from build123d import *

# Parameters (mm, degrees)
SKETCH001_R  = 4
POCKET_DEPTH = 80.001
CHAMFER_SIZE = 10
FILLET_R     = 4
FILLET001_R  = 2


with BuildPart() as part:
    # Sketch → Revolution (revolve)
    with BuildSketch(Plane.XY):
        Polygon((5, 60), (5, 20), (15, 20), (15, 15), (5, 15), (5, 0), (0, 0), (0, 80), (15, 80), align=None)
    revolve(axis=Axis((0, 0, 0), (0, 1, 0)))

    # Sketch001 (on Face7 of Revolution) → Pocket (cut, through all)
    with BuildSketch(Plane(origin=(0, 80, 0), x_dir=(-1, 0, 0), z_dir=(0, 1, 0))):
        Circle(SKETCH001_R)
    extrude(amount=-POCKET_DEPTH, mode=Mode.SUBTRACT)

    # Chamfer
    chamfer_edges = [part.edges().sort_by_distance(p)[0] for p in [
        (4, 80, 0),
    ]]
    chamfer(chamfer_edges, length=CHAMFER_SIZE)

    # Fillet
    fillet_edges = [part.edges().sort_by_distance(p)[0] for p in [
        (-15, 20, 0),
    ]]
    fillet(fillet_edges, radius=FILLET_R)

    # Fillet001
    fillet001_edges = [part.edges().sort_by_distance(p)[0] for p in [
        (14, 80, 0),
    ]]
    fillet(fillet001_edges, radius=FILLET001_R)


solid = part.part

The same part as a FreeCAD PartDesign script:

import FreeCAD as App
import Part
import Sketcher

V = App.Vector
Q = App.Units.Quantity


def edges_at(feature, points):
    """Names of the edges that pass closest to the given points."""
    edges = feature.Shape.Edges
    near = lambda p: min(range(len(edges)), key=lambda i: edges[i].distToShape(Part.Vertex(*p))[0])
    return sorted({f"Edge{near(p) + 1}" for p in points})

doc = App.newDocument("Part")
body = doc.addObject("PartDesign::Body", "Body")

# Sketch on XY plane
sketch1 = body.newObject("Sketcher::SketchObject", "Sketch")
sketch1.AttachmentSupport = (doc.getObject("XY_Plane"), [""])
sketch1.MapMode = "FlatFace"
sketch1.addGeometry(Part.LineSegment(V(5, 20, 0), V(5, 60, 0)), False)
sketch1.addGeometry(Part.LineSegment(V(5, 60, 0), V(15, 80, 0)), False)
sketch1.addGeometry(Part.LineSegment(V(15, 80, 0), V(0, 80, 0)), False)
sketch1.addGeometry(Part.LineSegment(V(0, 80, 0), V(0, 0, 0)), False)
sketch1.addGeometry(Part.LineSegment(V(0, 0, 0), V(5, 0, 0)), False)
sketch1.addGeometry(Part.LineSegment(V(5, 0, 0), V(5, 15, 0)), False)
sketch1.addGeometry(Part.LineSegment(V(5, 15, 0), V(15, 15, 0)), False)
sketch1.addGeometry(Part.LineSegment(V(15, 15, 0), V(15, 20, 0)), False)
sketch1.addGeometry(Part.LineSegment(V(15, 20, 0), V(5, 20, 0)), False)
sketch1.addConstraint(Sketcher.Constraint("Coincident", 0, 2, 1, 1))
sketch1.addConstraint(Sketcher.Constraint("Coincident", 1, 2, 2, 1))
sketch1.addConstraint(Sketcher.Constraint("Coincident", 2, 2, 3, 1))
sketch1.addConstraint(Sketcher.Constraint("Coincident", 3, 2, 4, 1))
sketch1.addConstraint(Sketcher.Constraint("Coincident", 4, 2, 5, 1))
sketch1.addConstraint(Sketcher.Constraint("Coincident", 5, 2, 6, 1))
sketch1.addConstraint(Sketcher.Constraint("Coincident", 6, 2, 7, 1))
sketch1.addConstraint(Sketcher.Constraint("Coincident", 7, 2, 8, 1))
sketch1.addConstraint(Sketcher.Constraint("Coincident", 8, 2, 0, 1))
sketch1.addConstraint(Sketcher.Constraint("Vertical", 0))
sketch1.addConstraint(Sketcher.Constraint("Horizontal", 2))
sketch1.addConstraint(Sketcher.Constraint("Vertical", 3))
sketch1.addConstraint(Sketcher.Constraint("Horizontal", 4))
sketch1.addConstraint(Sketcher.Constraint("Vertical", 5))
sketch1.addConstraint(Sketcher.Constraint("Horizontal", 6))
sketch1.addConstraint(Sketcher.Constraint("Vertical", 7))
sketch1.addConstraint(Sketcher.Constraint("Horizontal", 8))
sketch1.addConstraint(Sketcher.Constraint("Coincident", 3, 2, -1, 1))
sketch1.addConstraint(Sketcher.Constraint("Vertical", 0, 2, 4, 2))
sketch1.addConstraint(Sketcher.Constraint("Vertical", 1, 2, 6, 2))
sketch1.addConstraint(Sketcher.Constraint("Equal", 2, 5))
sketch1.addConstraint(Sketcher.Constraint("Equal", 4, 7))
sketch1.addConstraint(Sketcher.Constraint("DistanceX", 2, 2, 2, 1, Q("15 mm")))
sketch1.addConstraint(Sketcher.Constraint("DistanceX", 4, 1, 4, 2, Q("5 mm")))
sketch1.addConstraint(Sketcher.Constraint("DistanceY", 0, 1, 0, 2, Q("40 mm")))
sketch1.addConstraint(Sketcher.Constraint("DistanceY", 3, 2, 3, 1, Q("80 mm")))
revolution = body.newObject("PartDesign::Revolution", "Revolution")
revolution.Profile = sketch1
revolution.ReferenceAxis = (sketch1, ["V_Axis"])
revolution.Angle = 360

# Sketch on XZ plane
sketch2 = body.newObject("Sketcher::SketchObject", "Sketch001")
sketch2.AttachmentSupport = (doc.getObject("XZ_Plane"), [""])
sketch2.MapMode = "FlatFace"
sketch2.AttachmentOffset = App.Placement(V(0, 0, -80), App.Rotation())
sketch2.addGeometry(Part.Circle(V(0, 0, 0), V(0, 0, 1), 4), False)
sketch2.addConstraint(Sketcher.Constraint("Coincident", 0, 3, -1, 1))
sketch2.addConstraint(Sketcher.Constraint("Diameter", 0, Q("8 mm")))
pocket1 = body.newObject("PartDesign::Pocket", "Pocket")
pocket1.Profile = sketch2
pocket1.Type = "ThroughAll"
pocket1.Reversed = True
doc.recompute()

chamfer = body.newObject("PartDesign::Chamfer", "Chamfer")
chamfer.Base = (pocket1, edges_at(pocket1, [(4, 80, 0)]))
chamfer.Size = 10
doc.recompute()

fillet = body.newObject("PartDesign::Fillet", "Fillet")
fillet.Base = (chamfer, edges_at(chamfer, [(-15, 20, 0)]))
fillet.Radius = 4
doc.recompute()

fillet2 = body.newObject("PartDesign::Fillet", "Fillet001")
fillet2.Base = (fillet, edges_at(fillet, [(14, 80, 0)]))
fillet2.Radius = 2

doc.recompute()
